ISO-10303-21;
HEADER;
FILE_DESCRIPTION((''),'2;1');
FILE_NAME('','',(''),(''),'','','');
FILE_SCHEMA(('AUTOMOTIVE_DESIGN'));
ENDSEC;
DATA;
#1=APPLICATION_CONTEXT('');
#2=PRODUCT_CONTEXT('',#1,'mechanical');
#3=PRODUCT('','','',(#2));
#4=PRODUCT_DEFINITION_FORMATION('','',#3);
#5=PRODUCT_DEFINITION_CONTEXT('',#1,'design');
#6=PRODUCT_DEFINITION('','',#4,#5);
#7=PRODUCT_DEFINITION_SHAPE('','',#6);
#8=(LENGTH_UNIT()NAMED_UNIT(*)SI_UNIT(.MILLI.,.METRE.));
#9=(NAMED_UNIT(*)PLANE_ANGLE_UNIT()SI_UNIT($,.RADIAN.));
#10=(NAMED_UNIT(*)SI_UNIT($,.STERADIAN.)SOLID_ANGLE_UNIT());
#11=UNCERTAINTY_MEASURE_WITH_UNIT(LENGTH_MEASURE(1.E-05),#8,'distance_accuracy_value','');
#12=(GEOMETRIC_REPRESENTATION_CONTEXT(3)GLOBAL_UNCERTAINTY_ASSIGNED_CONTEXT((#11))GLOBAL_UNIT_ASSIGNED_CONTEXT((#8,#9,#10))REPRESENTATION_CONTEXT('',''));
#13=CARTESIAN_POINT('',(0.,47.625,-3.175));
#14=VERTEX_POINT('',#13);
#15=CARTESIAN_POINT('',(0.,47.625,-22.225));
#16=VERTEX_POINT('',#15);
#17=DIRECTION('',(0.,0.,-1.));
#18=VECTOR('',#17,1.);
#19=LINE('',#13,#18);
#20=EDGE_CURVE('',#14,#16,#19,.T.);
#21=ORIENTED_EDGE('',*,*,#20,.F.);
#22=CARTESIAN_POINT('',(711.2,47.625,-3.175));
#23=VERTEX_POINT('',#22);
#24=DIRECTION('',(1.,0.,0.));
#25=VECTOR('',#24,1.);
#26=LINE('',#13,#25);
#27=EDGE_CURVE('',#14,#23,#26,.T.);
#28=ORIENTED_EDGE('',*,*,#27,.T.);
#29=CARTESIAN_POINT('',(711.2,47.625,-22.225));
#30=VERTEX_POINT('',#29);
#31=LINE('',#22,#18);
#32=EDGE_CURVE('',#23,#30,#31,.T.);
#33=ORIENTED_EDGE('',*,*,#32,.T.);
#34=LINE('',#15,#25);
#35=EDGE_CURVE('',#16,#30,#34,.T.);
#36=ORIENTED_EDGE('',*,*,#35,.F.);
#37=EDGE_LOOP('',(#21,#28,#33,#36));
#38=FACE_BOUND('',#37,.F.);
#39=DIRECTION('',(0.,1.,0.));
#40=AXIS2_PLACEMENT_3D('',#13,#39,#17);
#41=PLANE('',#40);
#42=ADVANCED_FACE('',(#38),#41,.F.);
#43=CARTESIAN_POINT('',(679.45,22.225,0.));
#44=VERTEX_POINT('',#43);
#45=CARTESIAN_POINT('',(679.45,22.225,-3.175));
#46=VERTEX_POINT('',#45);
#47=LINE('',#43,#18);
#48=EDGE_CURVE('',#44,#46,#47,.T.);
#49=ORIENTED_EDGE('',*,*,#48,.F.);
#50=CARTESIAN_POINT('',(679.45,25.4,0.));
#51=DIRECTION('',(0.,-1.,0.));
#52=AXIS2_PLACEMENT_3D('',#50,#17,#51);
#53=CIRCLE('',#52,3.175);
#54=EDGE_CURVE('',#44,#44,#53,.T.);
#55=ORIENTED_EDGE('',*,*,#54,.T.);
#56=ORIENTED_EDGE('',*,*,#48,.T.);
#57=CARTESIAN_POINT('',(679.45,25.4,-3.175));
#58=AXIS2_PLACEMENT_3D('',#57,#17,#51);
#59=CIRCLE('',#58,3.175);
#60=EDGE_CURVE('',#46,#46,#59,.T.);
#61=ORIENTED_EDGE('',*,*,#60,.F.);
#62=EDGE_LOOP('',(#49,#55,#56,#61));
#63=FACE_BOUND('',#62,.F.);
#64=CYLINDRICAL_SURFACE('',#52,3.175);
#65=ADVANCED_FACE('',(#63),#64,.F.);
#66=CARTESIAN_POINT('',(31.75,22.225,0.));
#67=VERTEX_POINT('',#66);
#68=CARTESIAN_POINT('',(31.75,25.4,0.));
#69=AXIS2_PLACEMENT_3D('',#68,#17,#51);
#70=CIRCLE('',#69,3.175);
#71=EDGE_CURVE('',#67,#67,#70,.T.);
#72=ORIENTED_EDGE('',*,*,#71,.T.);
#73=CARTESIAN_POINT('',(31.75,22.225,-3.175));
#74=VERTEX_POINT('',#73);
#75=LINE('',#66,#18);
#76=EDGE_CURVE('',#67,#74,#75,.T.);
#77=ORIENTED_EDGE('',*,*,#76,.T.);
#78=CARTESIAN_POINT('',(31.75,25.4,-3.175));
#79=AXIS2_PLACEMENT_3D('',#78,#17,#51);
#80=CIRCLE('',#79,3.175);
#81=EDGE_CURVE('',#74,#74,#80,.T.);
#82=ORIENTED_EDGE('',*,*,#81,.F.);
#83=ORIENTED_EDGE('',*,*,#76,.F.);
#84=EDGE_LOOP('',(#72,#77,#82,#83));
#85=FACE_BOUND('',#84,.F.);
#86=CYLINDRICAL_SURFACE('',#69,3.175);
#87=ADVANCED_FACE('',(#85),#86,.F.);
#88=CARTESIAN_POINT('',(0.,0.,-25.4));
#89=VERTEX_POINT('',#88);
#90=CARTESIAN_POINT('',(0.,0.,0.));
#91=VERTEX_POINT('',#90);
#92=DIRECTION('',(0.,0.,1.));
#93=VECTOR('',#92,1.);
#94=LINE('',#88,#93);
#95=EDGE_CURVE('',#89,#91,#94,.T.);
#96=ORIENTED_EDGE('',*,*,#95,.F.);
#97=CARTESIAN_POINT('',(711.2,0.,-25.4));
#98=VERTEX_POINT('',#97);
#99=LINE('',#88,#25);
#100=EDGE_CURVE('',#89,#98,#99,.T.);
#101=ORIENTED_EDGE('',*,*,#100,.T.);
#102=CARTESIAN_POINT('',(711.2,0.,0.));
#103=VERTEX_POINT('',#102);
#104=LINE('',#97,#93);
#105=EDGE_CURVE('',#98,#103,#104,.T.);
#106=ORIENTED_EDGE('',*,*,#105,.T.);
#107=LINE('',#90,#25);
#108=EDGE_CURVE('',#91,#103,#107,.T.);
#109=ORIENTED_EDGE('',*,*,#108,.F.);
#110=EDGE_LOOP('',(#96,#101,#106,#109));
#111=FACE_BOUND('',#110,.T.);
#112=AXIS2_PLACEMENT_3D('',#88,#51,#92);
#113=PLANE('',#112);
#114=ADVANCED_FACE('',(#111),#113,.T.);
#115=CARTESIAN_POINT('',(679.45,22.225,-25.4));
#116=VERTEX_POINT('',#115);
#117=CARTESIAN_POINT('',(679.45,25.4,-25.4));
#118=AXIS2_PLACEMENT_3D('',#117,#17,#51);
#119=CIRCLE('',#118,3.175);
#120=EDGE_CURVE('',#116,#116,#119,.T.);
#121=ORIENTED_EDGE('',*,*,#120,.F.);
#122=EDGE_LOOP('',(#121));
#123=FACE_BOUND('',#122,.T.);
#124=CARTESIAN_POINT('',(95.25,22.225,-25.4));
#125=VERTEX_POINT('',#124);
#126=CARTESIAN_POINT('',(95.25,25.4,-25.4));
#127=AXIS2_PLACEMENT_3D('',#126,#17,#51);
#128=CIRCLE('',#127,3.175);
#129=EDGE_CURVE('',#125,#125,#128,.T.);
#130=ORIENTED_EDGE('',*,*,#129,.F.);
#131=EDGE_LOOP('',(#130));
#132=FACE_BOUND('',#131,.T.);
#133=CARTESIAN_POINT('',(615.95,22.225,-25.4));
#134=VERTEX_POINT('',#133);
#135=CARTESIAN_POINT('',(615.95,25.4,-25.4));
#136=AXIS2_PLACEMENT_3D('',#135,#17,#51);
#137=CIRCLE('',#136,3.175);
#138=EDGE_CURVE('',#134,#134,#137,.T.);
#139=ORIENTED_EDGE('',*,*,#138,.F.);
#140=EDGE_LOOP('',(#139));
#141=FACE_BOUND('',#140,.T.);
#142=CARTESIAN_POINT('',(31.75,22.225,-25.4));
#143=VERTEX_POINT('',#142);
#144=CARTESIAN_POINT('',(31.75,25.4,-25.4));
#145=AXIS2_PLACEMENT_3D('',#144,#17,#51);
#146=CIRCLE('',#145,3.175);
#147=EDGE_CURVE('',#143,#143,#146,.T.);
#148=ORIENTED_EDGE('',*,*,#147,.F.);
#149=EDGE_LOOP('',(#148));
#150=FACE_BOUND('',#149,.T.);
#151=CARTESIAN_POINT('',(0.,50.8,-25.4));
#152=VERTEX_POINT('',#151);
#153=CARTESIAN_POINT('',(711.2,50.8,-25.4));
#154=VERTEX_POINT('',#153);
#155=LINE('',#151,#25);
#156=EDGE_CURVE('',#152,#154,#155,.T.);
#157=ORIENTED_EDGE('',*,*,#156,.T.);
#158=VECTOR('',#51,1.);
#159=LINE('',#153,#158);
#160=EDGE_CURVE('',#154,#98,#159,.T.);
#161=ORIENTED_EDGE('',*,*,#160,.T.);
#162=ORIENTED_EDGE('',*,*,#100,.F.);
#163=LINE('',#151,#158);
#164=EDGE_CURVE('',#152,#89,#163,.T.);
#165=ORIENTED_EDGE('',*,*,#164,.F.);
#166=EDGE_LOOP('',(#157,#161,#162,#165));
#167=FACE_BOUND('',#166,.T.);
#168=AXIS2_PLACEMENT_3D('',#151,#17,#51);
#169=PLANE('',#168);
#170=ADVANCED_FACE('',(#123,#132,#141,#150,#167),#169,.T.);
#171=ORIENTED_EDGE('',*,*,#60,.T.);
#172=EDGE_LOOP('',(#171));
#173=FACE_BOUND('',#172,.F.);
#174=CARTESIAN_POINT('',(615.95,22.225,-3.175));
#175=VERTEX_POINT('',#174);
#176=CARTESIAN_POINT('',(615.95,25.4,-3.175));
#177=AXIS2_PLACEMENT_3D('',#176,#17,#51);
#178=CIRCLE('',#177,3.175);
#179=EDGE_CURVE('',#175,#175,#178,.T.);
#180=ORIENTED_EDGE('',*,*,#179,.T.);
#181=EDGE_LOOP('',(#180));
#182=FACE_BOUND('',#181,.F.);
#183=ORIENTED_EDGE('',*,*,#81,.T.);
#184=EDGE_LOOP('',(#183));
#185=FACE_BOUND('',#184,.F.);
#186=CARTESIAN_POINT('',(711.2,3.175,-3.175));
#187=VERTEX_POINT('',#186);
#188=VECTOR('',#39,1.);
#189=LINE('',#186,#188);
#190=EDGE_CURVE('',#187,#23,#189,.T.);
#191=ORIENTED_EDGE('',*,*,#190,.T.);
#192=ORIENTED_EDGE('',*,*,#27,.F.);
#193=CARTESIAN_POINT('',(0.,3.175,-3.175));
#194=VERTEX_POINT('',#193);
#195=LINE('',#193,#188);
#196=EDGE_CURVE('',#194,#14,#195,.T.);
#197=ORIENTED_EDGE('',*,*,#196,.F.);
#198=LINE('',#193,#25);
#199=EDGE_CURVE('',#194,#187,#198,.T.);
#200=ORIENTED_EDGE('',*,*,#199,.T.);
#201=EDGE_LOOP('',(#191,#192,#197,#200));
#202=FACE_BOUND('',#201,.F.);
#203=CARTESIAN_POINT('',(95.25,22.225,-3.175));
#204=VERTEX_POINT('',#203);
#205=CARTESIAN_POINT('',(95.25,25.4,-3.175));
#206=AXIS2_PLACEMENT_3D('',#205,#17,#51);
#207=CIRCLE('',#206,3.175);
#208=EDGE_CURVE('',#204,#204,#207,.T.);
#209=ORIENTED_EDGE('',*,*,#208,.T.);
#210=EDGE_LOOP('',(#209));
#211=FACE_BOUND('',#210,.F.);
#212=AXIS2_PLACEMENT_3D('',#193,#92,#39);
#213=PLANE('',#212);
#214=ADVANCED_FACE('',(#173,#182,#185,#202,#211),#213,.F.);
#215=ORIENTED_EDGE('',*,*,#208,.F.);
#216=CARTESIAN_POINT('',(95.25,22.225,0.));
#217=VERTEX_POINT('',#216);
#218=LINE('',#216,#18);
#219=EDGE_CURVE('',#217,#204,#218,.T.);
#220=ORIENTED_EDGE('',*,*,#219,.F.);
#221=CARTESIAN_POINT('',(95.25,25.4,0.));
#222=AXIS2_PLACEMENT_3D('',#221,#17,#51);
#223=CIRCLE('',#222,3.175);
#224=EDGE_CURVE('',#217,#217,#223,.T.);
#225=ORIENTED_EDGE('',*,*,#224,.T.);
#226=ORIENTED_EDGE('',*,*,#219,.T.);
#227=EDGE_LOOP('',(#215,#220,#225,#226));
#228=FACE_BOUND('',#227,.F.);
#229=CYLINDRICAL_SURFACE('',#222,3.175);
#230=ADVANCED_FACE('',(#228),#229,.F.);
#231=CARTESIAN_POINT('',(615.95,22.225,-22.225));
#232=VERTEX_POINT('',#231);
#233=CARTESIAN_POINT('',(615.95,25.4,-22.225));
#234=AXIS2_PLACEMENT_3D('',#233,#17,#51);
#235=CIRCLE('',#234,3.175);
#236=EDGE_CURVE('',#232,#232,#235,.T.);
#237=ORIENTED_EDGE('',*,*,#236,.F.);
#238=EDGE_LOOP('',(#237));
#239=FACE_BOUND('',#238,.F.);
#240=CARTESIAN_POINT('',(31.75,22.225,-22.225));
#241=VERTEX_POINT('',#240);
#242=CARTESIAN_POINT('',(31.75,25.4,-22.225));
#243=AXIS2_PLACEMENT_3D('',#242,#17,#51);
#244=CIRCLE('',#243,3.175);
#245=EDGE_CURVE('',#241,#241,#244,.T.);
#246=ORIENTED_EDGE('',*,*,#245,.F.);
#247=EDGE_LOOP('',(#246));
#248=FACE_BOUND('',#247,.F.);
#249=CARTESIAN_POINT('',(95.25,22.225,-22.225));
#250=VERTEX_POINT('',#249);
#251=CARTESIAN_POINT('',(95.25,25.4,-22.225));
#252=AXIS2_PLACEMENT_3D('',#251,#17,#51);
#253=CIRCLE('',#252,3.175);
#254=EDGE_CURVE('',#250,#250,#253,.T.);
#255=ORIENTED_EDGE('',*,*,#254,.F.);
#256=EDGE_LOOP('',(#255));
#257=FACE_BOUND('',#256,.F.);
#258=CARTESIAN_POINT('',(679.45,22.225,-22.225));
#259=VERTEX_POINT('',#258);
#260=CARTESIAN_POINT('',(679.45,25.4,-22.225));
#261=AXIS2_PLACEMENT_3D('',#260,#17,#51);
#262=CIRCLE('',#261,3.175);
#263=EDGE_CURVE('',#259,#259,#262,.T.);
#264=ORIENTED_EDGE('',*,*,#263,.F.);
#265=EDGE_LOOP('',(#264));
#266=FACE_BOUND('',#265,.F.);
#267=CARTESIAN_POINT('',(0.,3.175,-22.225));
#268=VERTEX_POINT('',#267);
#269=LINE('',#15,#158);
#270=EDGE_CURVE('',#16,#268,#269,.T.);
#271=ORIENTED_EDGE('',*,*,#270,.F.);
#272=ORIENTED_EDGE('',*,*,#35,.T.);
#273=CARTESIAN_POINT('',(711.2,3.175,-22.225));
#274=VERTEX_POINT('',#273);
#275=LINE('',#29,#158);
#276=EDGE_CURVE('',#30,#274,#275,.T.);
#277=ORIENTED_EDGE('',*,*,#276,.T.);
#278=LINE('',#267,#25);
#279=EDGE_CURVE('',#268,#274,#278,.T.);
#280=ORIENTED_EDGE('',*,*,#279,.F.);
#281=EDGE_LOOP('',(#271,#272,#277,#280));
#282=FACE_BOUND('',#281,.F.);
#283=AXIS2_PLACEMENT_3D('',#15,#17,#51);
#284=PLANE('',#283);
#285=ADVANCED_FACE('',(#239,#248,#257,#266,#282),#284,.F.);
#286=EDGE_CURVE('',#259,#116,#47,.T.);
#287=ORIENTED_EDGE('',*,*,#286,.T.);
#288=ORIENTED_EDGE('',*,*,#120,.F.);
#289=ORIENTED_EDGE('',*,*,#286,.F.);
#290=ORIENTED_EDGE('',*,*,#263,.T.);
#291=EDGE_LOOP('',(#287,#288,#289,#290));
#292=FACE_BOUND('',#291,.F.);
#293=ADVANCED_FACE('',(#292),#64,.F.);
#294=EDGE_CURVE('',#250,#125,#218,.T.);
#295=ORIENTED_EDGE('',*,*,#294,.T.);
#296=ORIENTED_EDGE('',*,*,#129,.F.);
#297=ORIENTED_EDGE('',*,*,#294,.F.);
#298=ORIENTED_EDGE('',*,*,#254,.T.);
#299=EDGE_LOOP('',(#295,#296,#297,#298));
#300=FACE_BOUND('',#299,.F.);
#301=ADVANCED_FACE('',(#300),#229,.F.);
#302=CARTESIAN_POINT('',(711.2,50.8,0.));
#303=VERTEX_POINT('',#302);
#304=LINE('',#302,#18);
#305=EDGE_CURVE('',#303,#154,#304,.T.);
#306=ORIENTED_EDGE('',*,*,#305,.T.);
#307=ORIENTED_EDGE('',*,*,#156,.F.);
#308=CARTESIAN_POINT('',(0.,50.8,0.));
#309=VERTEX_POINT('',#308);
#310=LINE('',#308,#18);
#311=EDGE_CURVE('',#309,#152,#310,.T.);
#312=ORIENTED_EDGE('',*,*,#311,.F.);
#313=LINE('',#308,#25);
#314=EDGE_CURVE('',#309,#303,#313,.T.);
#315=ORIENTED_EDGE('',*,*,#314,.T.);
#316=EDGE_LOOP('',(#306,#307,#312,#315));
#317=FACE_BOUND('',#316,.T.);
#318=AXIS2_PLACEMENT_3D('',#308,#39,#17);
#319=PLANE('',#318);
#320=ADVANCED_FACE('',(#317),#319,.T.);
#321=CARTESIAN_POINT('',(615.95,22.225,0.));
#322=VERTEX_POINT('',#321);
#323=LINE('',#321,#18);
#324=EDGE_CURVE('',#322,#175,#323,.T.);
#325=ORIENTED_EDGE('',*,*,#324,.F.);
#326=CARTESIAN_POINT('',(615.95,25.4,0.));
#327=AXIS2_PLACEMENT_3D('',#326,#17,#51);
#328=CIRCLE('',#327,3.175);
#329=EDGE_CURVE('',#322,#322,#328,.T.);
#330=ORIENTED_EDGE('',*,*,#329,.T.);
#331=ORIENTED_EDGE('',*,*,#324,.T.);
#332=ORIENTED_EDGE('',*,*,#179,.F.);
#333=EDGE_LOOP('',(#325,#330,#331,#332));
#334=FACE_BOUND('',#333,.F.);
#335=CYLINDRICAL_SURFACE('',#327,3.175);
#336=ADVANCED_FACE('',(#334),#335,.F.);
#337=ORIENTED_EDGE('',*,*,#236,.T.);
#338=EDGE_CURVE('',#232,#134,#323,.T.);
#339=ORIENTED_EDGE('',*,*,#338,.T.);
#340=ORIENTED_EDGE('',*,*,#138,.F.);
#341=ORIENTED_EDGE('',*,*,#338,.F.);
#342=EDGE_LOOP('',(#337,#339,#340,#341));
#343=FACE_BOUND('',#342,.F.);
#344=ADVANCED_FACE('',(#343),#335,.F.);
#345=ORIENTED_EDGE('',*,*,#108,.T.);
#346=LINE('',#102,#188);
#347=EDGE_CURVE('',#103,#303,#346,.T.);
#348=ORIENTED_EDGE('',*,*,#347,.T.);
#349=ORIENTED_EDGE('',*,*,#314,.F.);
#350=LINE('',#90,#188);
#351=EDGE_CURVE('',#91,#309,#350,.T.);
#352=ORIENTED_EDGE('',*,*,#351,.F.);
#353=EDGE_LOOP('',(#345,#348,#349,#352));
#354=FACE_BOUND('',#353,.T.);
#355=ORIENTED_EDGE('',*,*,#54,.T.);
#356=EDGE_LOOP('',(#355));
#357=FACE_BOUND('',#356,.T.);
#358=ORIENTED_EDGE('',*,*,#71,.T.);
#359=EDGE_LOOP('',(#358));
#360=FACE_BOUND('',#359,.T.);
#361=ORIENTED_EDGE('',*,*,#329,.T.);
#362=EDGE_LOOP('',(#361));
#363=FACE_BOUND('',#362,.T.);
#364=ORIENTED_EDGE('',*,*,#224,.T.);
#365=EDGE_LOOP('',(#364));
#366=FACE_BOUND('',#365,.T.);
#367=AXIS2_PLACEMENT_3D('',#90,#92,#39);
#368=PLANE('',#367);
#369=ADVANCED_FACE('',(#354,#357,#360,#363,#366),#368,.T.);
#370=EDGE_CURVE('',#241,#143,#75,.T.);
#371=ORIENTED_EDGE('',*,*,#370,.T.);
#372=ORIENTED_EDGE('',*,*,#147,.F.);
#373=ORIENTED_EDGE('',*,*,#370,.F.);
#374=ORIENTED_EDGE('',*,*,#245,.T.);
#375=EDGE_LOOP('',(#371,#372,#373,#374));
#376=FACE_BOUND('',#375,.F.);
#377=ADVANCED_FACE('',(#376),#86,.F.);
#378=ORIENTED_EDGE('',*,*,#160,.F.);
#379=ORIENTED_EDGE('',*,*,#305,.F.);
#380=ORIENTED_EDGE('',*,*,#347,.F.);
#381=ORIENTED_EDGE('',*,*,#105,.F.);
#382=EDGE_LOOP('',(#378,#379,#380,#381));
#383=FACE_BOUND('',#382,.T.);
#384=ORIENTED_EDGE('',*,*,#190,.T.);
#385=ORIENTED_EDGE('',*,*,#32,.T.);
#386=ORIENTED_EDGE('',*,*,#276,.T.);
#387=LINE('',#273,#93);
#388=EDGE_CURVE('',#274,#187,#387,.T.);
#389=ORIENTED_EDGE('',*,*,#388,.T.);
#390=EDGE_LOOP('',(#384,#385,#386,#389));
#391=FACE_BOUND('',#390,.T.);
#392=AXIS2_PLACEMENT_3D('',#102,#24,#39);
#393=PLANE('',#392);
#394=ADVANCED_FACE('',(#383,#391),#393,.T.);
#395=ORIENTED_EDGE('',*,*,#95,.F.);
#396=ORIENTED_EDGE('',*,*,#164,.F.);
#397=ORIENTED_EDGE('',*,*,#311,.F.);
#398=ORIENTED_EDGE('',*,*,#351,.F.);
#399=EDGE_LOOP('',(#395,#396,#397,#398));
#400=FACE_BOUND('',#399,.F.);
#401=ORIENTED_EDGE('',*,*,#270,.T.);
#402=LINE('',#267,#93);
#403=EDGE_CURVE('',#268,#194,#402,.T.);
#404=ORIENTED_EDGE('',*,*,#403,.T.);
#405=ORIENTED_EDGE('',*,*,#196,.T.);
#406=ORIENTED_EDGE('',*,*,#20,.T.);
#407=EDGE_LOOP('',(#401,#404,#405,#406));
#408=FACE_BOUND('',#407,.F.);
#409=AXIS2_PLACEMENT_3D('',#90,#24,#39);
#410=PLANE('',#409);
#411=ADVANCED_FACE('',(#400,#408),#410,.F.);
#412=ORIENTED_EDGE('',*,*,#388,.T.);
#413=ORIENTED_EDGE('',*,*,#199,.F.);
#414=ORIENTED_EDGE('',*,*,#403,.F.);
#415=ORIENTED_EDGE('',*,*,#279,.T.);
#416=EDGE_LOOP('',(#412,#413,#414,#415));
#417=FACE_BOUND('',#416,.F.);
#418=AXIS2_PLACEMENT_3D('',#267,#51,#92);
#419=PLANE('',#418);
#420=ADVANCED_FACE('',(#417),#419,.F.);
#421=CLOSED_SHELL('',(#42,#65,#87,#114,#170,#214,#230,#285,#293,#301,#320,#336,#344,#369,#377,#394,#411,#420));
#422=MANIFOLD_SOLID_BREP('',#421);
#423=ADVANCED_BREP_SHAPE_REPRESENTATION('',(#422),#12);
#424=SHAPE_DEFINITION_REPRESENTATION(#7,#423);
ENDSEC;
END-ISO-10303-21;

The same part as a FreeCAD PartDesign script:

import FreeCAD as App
import Part
import Sketcher
from FreeCAD import Vector
Q = App.Units.Quantity

doc = App.newDocument("Part")
body = doc.addObject("PartDesign::Body", "Body")

# Sketch on YZ plane
sketch1 = body.newObject("Sketcher::SketchObject", "Sketch")
sketch1.AttachmentSupport = (doc.getObject("YZ_Plane"), [""])
sketch1.MapMode = "FlatFace"
sketch1.addGeometry(Part.LineSegment(Vector(51, 0, 0), Vector(0, 0, 0)), False)
sketch1.addGeometry(Part.LineSegment(Vector(0, 0, 0), Vector(0, -25, 0)), False)
sketch1.addGeometry(Part.LineSegment(Vector(0, -25, 0), Vector(51, -25, 0)), False)
sketch1.addGeometry(Part.LineSegment(Vector(51, -25, 0), Vector(51, 0, 0)), False)
sketch1.addGeometry(Part.LineSegment(Vector(3, -22, 0), Vector(3, -3, 0)), False)
sketch1.addGeometry(Part.LineSegment(Vector(3, -3, 0), Vector(48, -3, 0)), False)
sketch1.addGeometry(Part.LineSegment(Vector(48, -3, 0), Vector(48, -22, 0)), False)
sketch1.addGeometry(Part.LineSegment(Vector(48, -22, 0), Vector(3, -22, 0)), False)
sketch1.addConstraint(Sketcher.Constraint("Coincident", 0, 2, 1, 1))
sketch1.addConstraint(Sketcher.Constraint("Coincident", 1, 2, 2, 1))
sketch1.addConstraint(Sketcher.Constraint("Coincident", 2, 2, 3, 1))
sketch1.addConstraint(Sketcher.Constraint("Coincident", 3, 2, 0, 1))
sketch1.addConstraint(Sketcher.Constraint("Coincident", 4, 2, 5, 1))
sketch1.addConstraint(Sketcher.Constraint("Coincident", 5, 2, 6, 1))
sketch1.addConstraint(Sketcher.Constraint("Coincident", 6, 2, 7, 1))
sketch1.addConstraint(Sketcher.Constraint("Coincident", 7, 2, 4, 1))
sketch1.addConstraint(Sketcher.Constraint("Horizontal", 0))
sketch1.addConstraint(Sketcher.Constraint("Vertical", 1))
sketch1.addConstraint(Sketcher.Constraint("Horizontal", 2))
sketch1.addConstraint(Sketcher.Constraint("Vertical", 3))
sketch1.addConstraint(Sketcher.Constraint("Vertical", 4))
sketch1.addConstraint(Sketcher.Constraint("Horizontal", 5))
sketch1.addConstraint(Sketcher.Constraint("Vertical", 6))
sketch1.addConstraint(Sketcher.Constraint("Horizontal", 7))
sketch1.addConstraint(Sketcher.Constraint("Coincident", 0, 2, -1, 1))
sketch1.addConstraint(Sketcher.Constraint("DistanceX", 0, 2, 0, 1, Q("2 in")))
sketch1.addConstraint(Sketcher.Constraint("DistanceY", 1, 2, 1, 1, Q("1 in")))
sketch1.addConstraint(Sketcher.Constraint("DistanceX", 5, 1, 5, 2, Q("1.75 in")))
sketch1.addConstraint(Sketcher.Constraint("DistanceY", 4, 1, 4, 2, Q("0.75 in")))
sketch1.addConstraint(Sketcher.Constraint("DistanceX", -1, 1, 4, 2, Q("0.125 in")))
sketch1.addConstraint(Sketcher.Constraint("DistanceY", 4, 2, -1, 1, Q("0.125 in")))
pad1 = body.newObject("PartDesign::Pad", "Pad")
pad1.Profile = sketch1
pad1.Length = Q("28 in")

# Sketch on XY plane
sketch2 = body.newObject("Sketcher::SketchObject", "Sketch001")
sketch2.AttachmentSupport = (doc.getObject("XY_Plane"), [""])
sketch2.MapMode = "FlatFace"
sketch2.addGeometry(Part.Circle(Vector(31.8, 25.4, 0), Vector(0, 0, 1), 3.2), False)
sketch2.addGeometry(Part.Circle(Vector(679.5, 25.4, 0), Vector(0, 0, 1), 3.2), False)
sketch2.addConstraint(Sketcher.Constraint("Equal", 0, 1))
sketch2.addConstraint(Sketcher.Constraint("Horizontal", 0, 3, 1, 3))
sketch2.addConstraint(Sketcher.Constraint("Diameter", 0, Q("0.25 in")))
sketch2.addConstraint(Sketcher.Constraint("DistanceY", -1, 1, 0, 3, Q("1 in")))
sketch2.addConstraint(Sketcher.Constraint("DistanceX", 0, 3, 1, 3, Q("25.5 in")))
sketch2.addConstraint(Sketcher.Constraint("DistanceX", -1, 1, 0, 3, Q("1.25 in")))
doc.recompute()
hole = body.newObject("PartDesign::Hole", "Hole")
hole.Profile = sketch2
hole.ThreadType = "None"
hole.Diameter = Q("0.25 in")
hole.DepthType = "ThroughAll"

# Sketch on XY plane
sketch3 = body.newObject("Sketcher::SketchObject", "Sketch002")
sketch3.AttachmentSupport = (doc.getObject("XY_Plane"), [""])
sketch3.MapMode = "FlatFace"
sketch3.addGeometry(Part.Circle(Vector(95.2, 25.4, 0), Vector(0, 0, 1), 3.2), False)
sketch3.addGeometry(Part.Circle(Vector(616, 25.4, 0), Vector(0, 0, 1), 3.2), False)
sketch3.addConstraint(Sketcher.Constraint("Equal", 0, 1))
sketch3.addConstraint(Sketcher.Constraint("Horizontal", 0, 3, 1, 3))
sketch3.addConstraint(Sketcher.Constraint("Diameter", 0, Q("0.25 in")))
sketch3.addConstraint(Sketcher.Constraint("DistanceY", -1, 1, 0, 3, Q("1 in")))
sketch3.addConstraint(Sketcher.Constraint("DistanceX", 0, 3, 1, 3, Q("20.5 in")))
sketch3.addConstraint(Sketcher.Constraint("DistanceX", -1, 1, 0, 3, Q("3.75 in")))
doc.recompute()
hole2 = body.newObject("PartDesign::Hole", "Hole001")
hole2.Profile = sketch3
hole2.ThreadType = "None"
hole2.Diameter = Q("0.25 in")
hole2.DepthType = "ThroughAll"

doc.recompute()
